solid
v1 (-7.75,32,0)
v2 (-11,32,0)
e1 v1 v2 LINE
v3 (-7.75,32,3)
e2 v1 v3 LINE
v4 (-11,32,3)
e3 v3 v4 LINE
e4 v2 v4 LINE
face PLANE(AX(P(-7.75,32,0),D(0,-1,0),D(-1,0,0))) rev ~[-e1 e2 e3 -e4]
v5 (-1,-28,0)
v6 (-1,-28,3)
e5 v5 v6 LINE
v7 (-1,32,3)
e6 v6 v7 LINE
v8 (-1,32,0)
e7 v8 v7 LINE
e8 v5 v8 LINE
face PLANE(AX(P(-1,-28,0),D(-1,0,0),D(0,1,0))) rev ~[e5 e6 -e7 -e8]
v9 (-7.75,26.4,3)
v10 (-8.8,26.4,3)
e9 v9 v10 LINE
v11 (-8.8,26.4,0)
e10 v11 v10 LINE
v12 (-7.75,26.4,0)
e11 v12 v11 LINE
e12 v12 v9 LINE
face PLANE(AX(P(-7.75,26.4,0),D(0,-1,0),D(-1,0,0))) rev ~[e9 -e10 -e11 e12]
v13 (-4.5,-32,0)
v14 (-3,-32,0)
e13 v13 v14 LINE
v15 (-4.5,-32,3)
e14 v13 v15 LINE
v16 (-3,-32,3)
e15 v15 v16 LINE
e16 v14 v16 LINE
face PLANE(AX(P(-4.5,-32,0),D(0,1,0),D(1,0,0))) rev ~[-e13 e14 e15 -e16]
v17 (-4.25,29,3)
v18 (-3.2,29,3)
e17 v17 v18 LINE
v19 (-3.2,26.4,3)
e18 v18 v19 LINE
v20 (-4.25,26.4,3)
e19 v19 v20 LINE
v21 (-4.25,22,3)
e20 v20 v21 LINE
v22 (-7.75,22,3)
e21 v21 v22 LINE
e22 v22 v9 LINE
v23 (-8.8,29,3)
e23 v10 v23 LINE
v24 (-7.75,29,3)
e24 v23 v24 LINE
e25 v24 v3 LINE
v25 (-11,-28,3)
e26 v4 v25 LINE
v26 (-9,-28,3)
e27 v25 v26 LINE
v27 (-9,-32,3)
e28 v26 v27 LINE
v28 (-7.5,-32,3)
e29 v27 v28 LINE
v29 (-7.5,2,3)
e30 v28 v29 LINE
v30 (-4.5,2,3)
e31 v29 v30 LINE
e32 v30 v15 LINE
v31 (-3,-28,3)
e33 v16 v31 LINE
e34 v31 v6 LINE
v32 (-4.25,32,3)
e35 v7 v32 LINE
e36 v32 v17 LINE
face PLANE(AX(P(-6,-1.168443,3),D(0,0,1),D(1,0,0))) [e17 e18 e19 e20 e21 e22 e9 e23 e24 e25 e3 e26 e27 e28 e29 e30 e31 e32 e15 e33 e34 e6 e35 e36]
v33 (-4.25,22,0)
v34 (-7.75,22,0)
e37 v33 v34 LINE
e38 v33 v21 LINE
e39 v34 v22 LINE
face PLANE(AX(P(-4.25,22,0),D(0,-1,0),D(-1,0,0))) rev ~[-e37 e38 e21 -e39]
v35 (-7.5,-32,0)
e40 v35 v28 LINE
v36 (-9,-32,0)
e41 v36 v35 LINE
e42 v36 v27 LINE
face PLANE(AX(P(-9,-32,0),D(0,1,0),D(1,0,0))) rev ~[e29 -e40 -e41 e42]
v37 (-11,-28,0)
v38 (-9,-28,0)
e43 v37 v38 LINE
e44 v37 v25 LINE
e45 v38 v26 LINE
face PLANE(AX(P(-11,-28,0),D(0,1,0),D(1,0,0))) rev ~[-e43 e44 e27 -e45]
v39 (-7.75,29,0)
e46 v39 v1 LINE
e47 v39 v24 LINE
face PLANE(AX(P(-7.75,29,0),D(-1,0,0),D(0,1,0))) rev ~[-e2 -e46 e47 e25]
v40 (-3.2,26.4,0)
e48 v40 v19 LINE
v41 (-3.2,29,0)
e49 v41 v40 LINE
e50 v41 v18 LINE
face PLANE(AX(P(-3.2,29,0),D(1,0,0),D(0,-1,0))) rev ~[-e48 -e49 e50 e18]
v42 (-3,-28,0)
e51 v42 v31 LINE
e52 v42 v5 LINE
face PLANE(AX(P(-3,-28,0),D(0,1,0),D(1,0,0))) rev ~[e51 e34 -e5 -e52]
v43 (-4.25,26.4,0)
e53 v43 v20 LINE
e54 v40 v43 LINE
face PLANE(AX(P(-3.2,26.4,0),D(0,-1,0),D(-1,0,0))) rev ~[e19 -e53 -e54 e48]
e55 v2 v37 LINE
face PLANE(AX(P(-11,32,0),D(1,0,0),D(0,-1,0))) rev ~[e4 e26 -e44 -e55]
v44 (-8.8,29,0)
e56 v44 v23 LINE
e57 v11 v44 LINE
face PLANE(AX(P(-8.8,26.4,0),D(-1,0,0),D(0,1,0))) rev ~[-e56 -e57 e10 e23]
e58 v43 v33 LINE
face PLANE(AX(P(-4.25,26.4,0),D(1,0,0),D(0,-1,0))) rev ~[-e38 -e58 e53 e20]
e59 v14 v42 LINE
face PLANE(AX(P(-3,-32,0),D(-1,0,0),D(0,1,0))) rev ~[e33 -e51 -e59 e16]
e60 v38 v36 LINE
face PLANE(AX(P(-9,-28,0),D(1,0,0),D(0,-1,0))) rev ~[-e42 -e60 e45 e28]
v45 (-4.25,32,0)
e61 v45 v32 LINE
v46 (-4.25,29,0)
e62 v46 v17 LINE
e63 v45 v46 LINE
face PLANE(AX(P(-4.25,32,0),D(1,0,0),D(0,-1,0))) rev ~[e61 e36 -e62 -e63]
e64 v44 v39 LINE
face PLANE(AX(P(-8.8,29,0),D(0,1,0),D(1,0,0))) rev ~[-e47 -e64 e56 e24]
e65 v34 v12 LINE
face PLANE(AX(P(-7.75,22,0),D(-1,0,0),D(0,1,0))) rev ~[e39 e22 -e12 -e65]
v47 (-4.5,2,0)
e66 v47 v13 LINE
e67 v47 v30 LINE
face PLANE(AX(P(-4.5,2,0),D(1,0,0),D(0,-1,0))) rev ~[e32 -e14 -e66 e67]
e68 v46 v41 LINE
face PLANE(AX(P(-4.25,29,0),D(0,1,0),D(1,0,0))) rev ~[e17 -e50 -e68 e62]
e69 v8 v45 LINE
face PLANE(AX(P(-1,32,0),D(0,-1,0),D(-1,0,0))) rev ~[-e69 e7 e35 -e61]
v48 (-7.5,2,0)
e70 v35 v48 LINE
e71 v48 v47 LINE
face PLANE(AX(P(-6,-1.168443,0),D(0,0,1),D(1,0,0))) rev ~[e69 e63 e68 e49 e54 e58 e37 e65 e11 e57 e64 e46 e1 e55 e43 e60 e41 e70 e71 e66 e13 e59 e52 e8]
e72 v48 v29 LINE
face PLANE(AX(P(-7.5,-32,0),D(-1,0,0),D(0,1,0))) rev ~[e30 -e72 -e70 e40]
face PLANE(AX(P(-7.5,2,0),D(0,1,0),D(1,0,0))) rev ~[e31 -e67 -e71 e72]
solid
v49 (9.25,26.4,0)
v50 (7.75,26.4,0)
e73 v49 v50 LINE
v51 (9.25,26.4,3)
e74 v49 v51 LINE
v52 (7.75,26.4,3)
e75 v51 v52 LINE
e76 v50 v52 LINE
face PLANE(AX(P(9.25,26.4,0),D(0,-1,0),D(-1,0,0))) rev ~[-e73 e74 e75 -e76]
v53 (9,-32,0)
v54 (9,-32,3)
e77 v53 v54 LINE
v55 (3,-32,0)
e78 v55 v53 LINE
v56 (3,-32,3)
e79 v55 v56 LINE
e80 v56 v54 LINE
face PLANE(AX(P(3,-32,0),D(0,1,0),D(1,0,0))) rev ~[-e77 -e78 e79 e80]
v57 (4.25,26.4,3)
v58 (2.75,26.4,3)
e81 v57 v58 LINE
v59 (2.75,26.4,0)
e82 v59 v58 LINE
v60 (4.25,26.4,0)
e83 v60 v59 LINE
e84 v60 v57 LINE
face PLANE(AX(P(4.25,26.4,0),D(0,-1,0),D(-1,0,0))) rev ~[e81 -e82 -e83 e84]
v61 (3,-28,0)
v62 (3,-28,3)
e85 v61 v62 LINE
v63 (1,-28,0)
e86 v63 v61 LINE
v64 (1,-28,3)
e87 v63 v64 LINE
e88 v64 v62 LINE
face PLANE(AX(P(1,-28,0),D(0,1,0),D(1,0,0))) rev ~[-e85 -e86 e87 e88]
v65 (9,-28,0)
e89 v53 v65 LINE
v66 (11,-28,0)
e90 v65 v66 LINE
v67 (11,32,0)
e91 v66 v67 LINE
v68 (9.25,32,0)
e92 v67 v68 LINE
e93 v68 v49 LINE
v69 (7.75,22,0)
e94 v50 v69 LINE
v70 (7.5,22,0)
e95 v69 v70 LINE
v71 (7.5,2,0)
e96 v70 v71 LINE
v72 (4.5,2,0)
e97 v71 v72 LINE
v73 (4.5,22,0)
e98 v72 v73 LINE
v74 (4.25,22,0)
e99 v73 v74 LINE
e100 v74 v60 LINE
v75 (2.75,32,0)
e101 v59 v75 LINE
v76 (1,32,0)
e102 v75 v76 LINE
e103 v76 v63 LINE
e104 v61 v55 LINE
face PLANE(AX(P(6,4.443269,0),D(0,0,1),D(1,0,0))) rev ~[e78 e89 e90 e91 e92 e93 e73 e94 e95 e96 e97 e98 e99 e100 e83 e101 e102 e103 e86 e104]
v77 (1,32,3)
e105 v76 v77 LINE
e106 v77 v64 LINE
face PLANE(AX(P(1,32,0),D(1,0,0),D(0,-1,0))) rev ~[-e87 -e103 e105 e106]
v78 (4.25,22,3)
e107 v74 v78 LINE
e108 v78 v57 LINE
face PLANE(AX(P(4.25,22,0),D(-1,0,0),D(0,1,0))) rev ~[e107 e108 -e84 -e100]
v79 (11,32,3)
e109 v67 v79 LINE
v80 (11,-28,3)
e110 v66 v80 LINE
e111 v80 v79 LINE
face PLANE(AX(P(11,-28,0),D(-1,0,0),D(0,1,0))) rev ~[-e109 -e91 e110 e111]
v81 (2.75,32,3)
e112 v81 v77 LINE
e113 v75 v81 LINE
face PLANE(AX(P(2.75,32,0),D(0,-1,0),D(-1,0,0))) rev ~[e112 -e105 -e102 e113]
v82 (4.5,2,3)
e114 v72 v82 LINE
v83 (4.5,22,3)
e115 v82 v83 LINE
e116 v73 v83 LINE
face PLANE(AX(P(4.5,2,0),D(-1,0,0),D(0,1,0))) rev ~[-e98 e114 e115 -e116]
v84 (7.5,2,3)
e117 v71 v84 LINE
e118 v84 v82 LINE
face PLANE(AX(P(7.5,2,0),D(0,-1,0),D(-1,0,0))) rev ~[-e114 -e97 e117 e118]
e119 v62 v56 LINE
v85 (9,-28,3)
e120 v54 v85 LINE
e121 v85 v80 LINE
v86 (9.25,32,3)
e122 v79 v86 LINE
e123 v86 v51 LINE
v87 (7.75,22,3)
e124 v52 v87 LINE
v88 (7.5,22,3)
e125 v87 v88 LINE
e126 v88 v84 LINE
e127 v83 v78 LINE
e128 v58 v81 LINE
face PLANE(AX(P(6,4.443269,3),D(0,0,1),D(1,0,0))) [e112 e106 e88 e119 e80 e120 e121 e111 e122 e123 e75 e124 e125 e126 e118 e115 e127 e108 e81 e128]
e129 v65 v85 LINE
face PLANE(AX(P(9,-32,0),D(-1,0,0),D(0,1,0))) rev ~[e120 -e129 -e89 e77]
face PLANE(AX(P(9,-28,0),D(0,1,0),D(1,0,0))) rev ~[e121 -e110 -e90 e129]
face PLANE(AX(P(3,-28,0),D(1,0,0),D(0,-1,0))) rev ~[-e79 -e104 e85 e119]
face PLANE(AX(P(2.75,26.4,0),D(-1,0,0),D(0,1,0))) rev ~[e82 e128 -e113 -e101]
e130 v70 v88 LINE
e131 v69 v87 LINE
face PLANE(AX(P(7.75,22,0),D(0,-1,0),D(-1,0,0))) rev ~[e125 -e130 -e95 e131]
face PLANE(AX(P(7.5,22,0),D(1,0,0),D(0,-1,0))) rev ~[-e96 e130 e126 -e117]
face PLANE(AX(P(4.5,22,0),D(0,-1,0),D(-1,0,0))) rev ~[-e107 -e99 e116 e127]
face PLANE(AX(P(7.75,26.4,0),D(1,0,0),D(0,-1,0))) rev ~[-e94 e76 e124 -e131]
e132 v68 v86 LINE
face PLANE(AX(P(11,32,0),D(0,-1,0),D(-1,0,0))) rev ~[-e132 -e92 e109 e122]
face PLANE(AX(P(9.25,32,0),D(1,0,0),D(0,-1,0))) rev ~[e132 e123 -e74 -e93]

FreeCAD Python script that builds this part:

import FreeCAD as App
import Part
import Sketcher
from FreeCAD import Vector

doc = App.newDocument("Part")
body = doc.addObject("PartDesign::Body", "Body")
body.AllowCompound = True

sketch1 = doc.addObject("Sketcher::SketchObject", "Sketch")
body.addObject(sketch1)
sketch1.AttachmentSupport = (doc.XY_Plane, [""])
sketch1.MapMode = "FlatFace"
sketch1.addGeometry([
    Part.LineSegment(Vector(-7.75, 32, 0), Vector(-11, 32, 0)),
    Part.LineSegment(Vector(-11, 32, 0), Vector(-11, -28, 0)),
    Part.LineSegment(Vector(-11, -28, 0), Vector(-9, -28, 0)),
    Part.LineSegment(Vector(-9, -28, 0), Vector(-9, -32, 0)),
    Part.LineSegment(Vector(-9, -32, 0), Vector(-7.5, -32, 0)),
    Part.LineSegment(Vector(-7.5, -32, 0), Vector(-7.5, 2, 0)),
    Part.LineSegment(Vector(-7.5, 2, 0), Vector(-4.5, 2, 0)),
    Part.LineSegment(Vector(-4.5, 2, 0), Vector(-4.5, -32, 0)),
    Part.LineSegment(Vector(-4.5, -32, 0), Vector(-3, -32, 0)),
    Part.LineSegment(Vector(-3, -32, 0), Vector(-3, -28, 0)),
    Part.LineSegment(Vector(-3, -28, 0), Vector(-1, -28, 0)),
    Part.LineSegment(Vector(-1, -28, 0), Vector(-1, 32, 0)),
    Part.LineSegment(Vector(-1, 32, 0), Vector(-4.25, 32, 0)),
    Part.LineSegment(Vector(-4.25, 32, 0), Vector(-4.25, 29, 0)),
    Part.LineSegment(Vector(-4.25, 29, 0), Vector(-3.2, 29, 0)),
    Part.LineSegment(Vector(-3.2, 29, 0), Vector(-3.2, 26.4, 0)),
    Part.LineSegment(Vector(-3.2, 26.4, 0), Vector(-4.25, 26.4, 0)),
    Part.LineSegment(Vector(-4.25, 26.4, 0), Vector(-4.25, 22, 0)),
    Part.LineSegment(Vector(-4.25, 22, 0), Vector(-7.75, 22, 0)),
    Part.LineSegment(Vector(-7.75, 22, 0), Vector(-7.75, 26.4, 0)),
    Part.LineSegment(Vector(-7.75, 26.4, 0), Vector(-8.8, 26.4, 0)),
    Part.LineSegment(Vector(-8.8, 26.4, 0), Vector(-8.8, 29, 0)),
    Part.LineSegment(Vector(-8.8, 29, 0), Vector(-7.75, 29, 0)),
    Part.LineSegment(Vector(-7.75, 29, 0), Vector(-7.75, 32, 0)),
    Part.LineSegment(Vector(2.75, 32, 0), Vector(1, 32, 0)),
    Part.LineSegment(Vector(1, 32, 0), Vector(1, -28, 0)),
    Part.LineSegment(Vector(1, -28, 0), Vector(3, -28, 0)),
    Part.LineSegment(Vector(3, -28, 0), Vector(3, -32, 0)),
    Part.LineSegment(Vector(3, -32, 0), Vector(9, -32, 0)),
    Part.LineSegment(Vector(9, -32, 0), Vector(9, -28, 0)),
    Part.LineSegment(Vector(9, -28, 0), Vector(11, -28, 0)),
    Part.LineSegment(Vector(11, -28, 0), Vector(11, 32, 0)),
    Part.LineSegment(Vector(11, 32, 0), Vector(9.25, 32, 0)),
    Part.LineSegment(Vector(9.25, 32, 0), Vector(9.25, 26.4, 0)),
    Part.LineSegment(Vector(9.25, 26.4, 0), Vector(7.75, 26.4, 0)),
    Part.LineSegment(Vector(7.75, 26.4, 0), Vector(7.75, 22, 0)),
    Part.LineSegment(Vector(7.75, 22, 0), Vector(7.5, 22, 0)),
    Part.LineSegment(Vector(7.5, 22, 0), Vector(7.5, 2, 0)),
    Part.LineSegment(Vector(7.5, 2, 0), Vector(4.5, 2, 0)),
    Part.LineSegment(Vector(4.5, 2, 0), Vector(4.5, 22, 0)),
    Part.LineSegment(Vector(4.5, 22, 0), Vector(4.25, 22, 0)),
    Part.LineSegment(Vector(4.25, 22, 0), Vector(4.25, 26.4, 0)),
    Part.LineSegment(Vector(4.25, 26.4, 0), Vector(2.75, 26.4, 0)),
    Part.LineSegment(Vector(2.75, 26.4, 0), Vector(2.75, 32, 0)),
], False)
sketch1.addConstraint([
    Sketcher.Constraint("Coincident", 0, 2, 1, 1),
    Sketcher.Constraint("Coincident", 1, 2, 2, 1),
    Sketcher.Constraint("Coincident", 2, 2, 3, 1),
    Sketcher.Constraint("Coincident", 3, 2, 4, 1),
    Sketcher.Constraint("Coincident", 4, 2, 5, 1),
    Sketcher.Constraint("Coincident", 5, 2, 6, 1),
    Sketcher.Constraint("Coincident", 6, 2, 7, 1),
    Sketcher.Constraint("Coincident", 7, 2, 8, 1),
    Sketcher.Constraint("Coincident", 8, 2, 9, 1),
    Sketcher.Constraint("Coincident", 9, 2, 10, 1),
    Sketcher.Constraint("Coincident", 10, 2, 11, 1),
    Sketcher.Constraint("Coincident", 11, 2, 12, 1),
    Sketcher.Constraint("Coincident", 12, 2, 13, 1),
    Sketcher.Constraint("Coincident", 13, 2, 14, 1),
    Sketcher.Constraint("Coincident", 14, 2, 15, 1),
    Sketcher.Constraint("Coincident", 15, 2, 16, 1),
    Sketcher.Constraint("Coincident", 16, 2, 17, 1),
    Sketcher.Constraint("Coincident", 17, 2, 18, 1),
    Sketcher.Constraint("Coincident", 18, 2, 19, 1),
    Sketcher.Constraint("Coincident", 19, 2, 20, 1),
    Sketcher.Constraint("Coincident", 20, 2, 21, 1),
    Sketcher.Constraint("Coincident", 21, 2, 22, 1),
    Sketcher.Constraint("Coincident", 22, 2, 23, 1),
    Sketcher.Constraint("Coincident", 23, 2, 0, 1),
    Sketcher.Constraint("Coincident", 24, 2, 25, 1),
    Sketcher.Constraint("Coincident", 25, 2, 26, 1),
    Sketcher.Constraint("Coincident", 26, 2, 27, 1),
    Sketcher.Constraint("Coincident", 27, 2, 28, 1),
    Sketcher.Constraint("Coincident", 28, 2, 29, 1),
    Sketcher.Constraint("Coincident", 29, 2, 30, 1),
    Sketcher.Constraint("Coincident", 30, 2, 31, 1),
    Sketcher.Constraint("Coincident", 31, 2, 32, 1),
    Sketcher.Constraint("Coincident", 32, 2, 33, 1),
    Sketcher.Constraint("Coincident", 33, 2, 34, 1),
    Sketcher.Constraint("Coincident", 34, 2, 35, 1),
    Sketcher.Constraint("Coincident", 35, 2, 36, 1),
    Sketcher.Constraint("Coincident", 36, 2, 37, 1),
    Sketcher.Constraint("Coincident", 37, 2, 38, 1),
    Sketcher.Constraint("Coincident", 38, 2, 39, 1),
    Sketcher.Constraint("Coincident", 39, 2, 40, 1),
    Sketcher.Constraint("Coincident", 40, 2, 41, 1),
    Sketcher.Constraint("Coincident", 41, 2, 42, 1),
    Sketcher.Constraint("Coincident", 42, 2, 43, 1),
    Sketcher.Constraint("Coincident", 43, 2, 24, 1),
    Sketcher.Constraint("Horizontal", 0),
    Sketcher.Constraint("Vertical", 1),
    Sketcher.Constraint("Horizontal", 2),
    Sketcher.Constraint("Vertical", 3),
    Sketcher.Constraint("Horizontal", 4),
    Sketcher.Constraint("Vertical", 5),
    Sketcher.Constraint("Horizontal", 6),
    Sketcher.Constraint("Vertical", 7),
    Sketcher.Constraint("Horizontal", 8),
    Sketcher.Constraint("Vertical", 9),
    Sketcher.Constraint("Horizontal", 10),
    Sketcher.Constraint("Vertical", 11),
    Sketcher.Constraint("Horizontal", 12),
    Sketcher.Constraint("Vertical", 13),
    Sketcher.Constraint("Horizontal", 14),
    Sketcher.Constraint("Vertical", 15),
    Sketcher.Constraint("Horizontal", 16),
    Sketcher.Constraint("Vertical", 17),
    Sketcher.Constraint("Horizontal", 18),
    Sketcher.Constraint("Vertical", 19),
    Sketcher.Constraint("Horizontal", 20),
    Sketcher.Constraint("Vertical", 21),
    Sketcher.Constraint("Horizontal", 22),
    Sketcher.Constraint("Vertical", 23),
    Sketcher.Constraint("Horizontal", 24),
    Sketcher.Constraint("Vertical", 25),
    Sketcher.Constraint("Horizontal", 26),
    Sketcher.Constraint("Vertical", 27),
    Sketcher.Constraint("Horizontal", 28),
    Sketcher.Constraint("Vertical", 29),
    Sketcher.Constraint("Horizontal", 30),
    Sketcher.Constraint("Vertical", 31),
    Sketcher.Constraint("Horizontal", 32),
    Sketcher.Constraint("Vertical", 33),
    Sketcher.Constraint("Horizontal", 34),
    Sketcher.Constraint("Vertical", 35),
    Sketcher.Constraint("Horizontal", 36),
    Sketcher.Constraint("Vertical", 37),
    Sketcher.Constraint("Horizontal", 38),
    Sketcher.Constraint("Vertical", 39),
    Sketcher.Constraint("Horizontal", 40),
    Sketcher.Constraint("Vertical", 41),
    Sketcher.Constraint("Horizontal", 42),
    Sketcher.Constraint("Vertical", 43),
    Sketcher.Constraint("Symmetric", 11, 2, 24, 2, -2),
    Sketcher.Constraint("Symmetric", 9, 2, 26, 2, -2),
    Sketcher.Constraint("Symmetric", 3, 2, 28, 2, -2),
    Sketcher.Constraint("Symmetric", 1, 2, 30, 2, -2),
    Sketcher.Constraint("Symmetric", 19, 2, 34, 2, -2),
    Sketcher.Constraint("Symmetric", 5, 2, 37, 2, -2),
    Sketcher.Constraint("Symmetric", 17, 2, 40, 2, -2),
    Sketcher.Constraint("Horizontal", 4, 2, 7, 2),
    Sketcher.Constraint("Horizontal", 2, 2, 9, 2),
    Sketcher.Constraint("Horizontal", 0, 2, 11, 2),
    Sketcher.Constraint("Horizontal", 16, 2, 19, 2),
    Sketcher.Constraint("Horizontal", 14, 2, 21, 2),
    Sketcher.Constraint("Horizontal", 24, 2, 31, 2),
    Sketcher.Constraint("Horizontal", 18, 2, 35, 2),
    Sketcher.Constraint("Horizontal", 34, 2, 41, 2),
    Sketcher.Constraint("Vertical", 13, 2, 16, 2),
    Sketcher.Constraint("Vertical", 19, 2, 22, 2),
    Sketcher.Constraint("Equal", 4, 8),
    Sketcher.Constraint("Equal", 2, 10),
    Sketcher.Constraint("Equal", 0, 12),
    Sketcher.Constraint("Equal", 16, 20),
    Sketcher.Constraint("Equal", 24, 32),
    Sketcher.Constraint("Equal", 8, 34),
    Sketcher.Constraint("Equal", 6, 38),
    Sketcher.Constraint("Equal", 38, 13),
    Sketcher.Constraint("DistanceX", 2, 1, 2, 2, 2.0),
    Sketcher.Constraint("DistanceX", 6, 1, 6, 2, 3.0),
    Sketcher.Constraint("DistanceX", 28, 1, 28, 2, 6.0),
    Sketcher.Constraint("DistanceY", 1, 2, 1, 1, 60.0),
    Sketcher.Constraint("DistanceY", 3, 2, 3, 1, 4.0),
    Sketcher.Constraint("DistanceY", 5, 1, 5, 2, 34.0),
    Sketcher.Constraint("DistanceY", 37, 2, 37, 1, 20.0),
    Sketcher.Constraint("DistanceX", 18, 2, 18, 1, 3.5),
    Sketcher.Constraint("DistanceY", 15, 2, 15, 1, 2.6),
    Sketcher.Constraint("DistanceX", 0, 2, -1, 1, 11.0),
    Sketcher.Constraint("DistanceY", -1, 1, 0, 2, 32.0),
    Sketcher.Constraint("DistanceX", 14, 1, 14, 2, 1.05),
])
pad1 = doc.addObject("PartDesign::Pad", "Pad")
body.addObject(pad1)
pad1.Profile = sketch1
pad1.Length = 3

doc.recompute()
